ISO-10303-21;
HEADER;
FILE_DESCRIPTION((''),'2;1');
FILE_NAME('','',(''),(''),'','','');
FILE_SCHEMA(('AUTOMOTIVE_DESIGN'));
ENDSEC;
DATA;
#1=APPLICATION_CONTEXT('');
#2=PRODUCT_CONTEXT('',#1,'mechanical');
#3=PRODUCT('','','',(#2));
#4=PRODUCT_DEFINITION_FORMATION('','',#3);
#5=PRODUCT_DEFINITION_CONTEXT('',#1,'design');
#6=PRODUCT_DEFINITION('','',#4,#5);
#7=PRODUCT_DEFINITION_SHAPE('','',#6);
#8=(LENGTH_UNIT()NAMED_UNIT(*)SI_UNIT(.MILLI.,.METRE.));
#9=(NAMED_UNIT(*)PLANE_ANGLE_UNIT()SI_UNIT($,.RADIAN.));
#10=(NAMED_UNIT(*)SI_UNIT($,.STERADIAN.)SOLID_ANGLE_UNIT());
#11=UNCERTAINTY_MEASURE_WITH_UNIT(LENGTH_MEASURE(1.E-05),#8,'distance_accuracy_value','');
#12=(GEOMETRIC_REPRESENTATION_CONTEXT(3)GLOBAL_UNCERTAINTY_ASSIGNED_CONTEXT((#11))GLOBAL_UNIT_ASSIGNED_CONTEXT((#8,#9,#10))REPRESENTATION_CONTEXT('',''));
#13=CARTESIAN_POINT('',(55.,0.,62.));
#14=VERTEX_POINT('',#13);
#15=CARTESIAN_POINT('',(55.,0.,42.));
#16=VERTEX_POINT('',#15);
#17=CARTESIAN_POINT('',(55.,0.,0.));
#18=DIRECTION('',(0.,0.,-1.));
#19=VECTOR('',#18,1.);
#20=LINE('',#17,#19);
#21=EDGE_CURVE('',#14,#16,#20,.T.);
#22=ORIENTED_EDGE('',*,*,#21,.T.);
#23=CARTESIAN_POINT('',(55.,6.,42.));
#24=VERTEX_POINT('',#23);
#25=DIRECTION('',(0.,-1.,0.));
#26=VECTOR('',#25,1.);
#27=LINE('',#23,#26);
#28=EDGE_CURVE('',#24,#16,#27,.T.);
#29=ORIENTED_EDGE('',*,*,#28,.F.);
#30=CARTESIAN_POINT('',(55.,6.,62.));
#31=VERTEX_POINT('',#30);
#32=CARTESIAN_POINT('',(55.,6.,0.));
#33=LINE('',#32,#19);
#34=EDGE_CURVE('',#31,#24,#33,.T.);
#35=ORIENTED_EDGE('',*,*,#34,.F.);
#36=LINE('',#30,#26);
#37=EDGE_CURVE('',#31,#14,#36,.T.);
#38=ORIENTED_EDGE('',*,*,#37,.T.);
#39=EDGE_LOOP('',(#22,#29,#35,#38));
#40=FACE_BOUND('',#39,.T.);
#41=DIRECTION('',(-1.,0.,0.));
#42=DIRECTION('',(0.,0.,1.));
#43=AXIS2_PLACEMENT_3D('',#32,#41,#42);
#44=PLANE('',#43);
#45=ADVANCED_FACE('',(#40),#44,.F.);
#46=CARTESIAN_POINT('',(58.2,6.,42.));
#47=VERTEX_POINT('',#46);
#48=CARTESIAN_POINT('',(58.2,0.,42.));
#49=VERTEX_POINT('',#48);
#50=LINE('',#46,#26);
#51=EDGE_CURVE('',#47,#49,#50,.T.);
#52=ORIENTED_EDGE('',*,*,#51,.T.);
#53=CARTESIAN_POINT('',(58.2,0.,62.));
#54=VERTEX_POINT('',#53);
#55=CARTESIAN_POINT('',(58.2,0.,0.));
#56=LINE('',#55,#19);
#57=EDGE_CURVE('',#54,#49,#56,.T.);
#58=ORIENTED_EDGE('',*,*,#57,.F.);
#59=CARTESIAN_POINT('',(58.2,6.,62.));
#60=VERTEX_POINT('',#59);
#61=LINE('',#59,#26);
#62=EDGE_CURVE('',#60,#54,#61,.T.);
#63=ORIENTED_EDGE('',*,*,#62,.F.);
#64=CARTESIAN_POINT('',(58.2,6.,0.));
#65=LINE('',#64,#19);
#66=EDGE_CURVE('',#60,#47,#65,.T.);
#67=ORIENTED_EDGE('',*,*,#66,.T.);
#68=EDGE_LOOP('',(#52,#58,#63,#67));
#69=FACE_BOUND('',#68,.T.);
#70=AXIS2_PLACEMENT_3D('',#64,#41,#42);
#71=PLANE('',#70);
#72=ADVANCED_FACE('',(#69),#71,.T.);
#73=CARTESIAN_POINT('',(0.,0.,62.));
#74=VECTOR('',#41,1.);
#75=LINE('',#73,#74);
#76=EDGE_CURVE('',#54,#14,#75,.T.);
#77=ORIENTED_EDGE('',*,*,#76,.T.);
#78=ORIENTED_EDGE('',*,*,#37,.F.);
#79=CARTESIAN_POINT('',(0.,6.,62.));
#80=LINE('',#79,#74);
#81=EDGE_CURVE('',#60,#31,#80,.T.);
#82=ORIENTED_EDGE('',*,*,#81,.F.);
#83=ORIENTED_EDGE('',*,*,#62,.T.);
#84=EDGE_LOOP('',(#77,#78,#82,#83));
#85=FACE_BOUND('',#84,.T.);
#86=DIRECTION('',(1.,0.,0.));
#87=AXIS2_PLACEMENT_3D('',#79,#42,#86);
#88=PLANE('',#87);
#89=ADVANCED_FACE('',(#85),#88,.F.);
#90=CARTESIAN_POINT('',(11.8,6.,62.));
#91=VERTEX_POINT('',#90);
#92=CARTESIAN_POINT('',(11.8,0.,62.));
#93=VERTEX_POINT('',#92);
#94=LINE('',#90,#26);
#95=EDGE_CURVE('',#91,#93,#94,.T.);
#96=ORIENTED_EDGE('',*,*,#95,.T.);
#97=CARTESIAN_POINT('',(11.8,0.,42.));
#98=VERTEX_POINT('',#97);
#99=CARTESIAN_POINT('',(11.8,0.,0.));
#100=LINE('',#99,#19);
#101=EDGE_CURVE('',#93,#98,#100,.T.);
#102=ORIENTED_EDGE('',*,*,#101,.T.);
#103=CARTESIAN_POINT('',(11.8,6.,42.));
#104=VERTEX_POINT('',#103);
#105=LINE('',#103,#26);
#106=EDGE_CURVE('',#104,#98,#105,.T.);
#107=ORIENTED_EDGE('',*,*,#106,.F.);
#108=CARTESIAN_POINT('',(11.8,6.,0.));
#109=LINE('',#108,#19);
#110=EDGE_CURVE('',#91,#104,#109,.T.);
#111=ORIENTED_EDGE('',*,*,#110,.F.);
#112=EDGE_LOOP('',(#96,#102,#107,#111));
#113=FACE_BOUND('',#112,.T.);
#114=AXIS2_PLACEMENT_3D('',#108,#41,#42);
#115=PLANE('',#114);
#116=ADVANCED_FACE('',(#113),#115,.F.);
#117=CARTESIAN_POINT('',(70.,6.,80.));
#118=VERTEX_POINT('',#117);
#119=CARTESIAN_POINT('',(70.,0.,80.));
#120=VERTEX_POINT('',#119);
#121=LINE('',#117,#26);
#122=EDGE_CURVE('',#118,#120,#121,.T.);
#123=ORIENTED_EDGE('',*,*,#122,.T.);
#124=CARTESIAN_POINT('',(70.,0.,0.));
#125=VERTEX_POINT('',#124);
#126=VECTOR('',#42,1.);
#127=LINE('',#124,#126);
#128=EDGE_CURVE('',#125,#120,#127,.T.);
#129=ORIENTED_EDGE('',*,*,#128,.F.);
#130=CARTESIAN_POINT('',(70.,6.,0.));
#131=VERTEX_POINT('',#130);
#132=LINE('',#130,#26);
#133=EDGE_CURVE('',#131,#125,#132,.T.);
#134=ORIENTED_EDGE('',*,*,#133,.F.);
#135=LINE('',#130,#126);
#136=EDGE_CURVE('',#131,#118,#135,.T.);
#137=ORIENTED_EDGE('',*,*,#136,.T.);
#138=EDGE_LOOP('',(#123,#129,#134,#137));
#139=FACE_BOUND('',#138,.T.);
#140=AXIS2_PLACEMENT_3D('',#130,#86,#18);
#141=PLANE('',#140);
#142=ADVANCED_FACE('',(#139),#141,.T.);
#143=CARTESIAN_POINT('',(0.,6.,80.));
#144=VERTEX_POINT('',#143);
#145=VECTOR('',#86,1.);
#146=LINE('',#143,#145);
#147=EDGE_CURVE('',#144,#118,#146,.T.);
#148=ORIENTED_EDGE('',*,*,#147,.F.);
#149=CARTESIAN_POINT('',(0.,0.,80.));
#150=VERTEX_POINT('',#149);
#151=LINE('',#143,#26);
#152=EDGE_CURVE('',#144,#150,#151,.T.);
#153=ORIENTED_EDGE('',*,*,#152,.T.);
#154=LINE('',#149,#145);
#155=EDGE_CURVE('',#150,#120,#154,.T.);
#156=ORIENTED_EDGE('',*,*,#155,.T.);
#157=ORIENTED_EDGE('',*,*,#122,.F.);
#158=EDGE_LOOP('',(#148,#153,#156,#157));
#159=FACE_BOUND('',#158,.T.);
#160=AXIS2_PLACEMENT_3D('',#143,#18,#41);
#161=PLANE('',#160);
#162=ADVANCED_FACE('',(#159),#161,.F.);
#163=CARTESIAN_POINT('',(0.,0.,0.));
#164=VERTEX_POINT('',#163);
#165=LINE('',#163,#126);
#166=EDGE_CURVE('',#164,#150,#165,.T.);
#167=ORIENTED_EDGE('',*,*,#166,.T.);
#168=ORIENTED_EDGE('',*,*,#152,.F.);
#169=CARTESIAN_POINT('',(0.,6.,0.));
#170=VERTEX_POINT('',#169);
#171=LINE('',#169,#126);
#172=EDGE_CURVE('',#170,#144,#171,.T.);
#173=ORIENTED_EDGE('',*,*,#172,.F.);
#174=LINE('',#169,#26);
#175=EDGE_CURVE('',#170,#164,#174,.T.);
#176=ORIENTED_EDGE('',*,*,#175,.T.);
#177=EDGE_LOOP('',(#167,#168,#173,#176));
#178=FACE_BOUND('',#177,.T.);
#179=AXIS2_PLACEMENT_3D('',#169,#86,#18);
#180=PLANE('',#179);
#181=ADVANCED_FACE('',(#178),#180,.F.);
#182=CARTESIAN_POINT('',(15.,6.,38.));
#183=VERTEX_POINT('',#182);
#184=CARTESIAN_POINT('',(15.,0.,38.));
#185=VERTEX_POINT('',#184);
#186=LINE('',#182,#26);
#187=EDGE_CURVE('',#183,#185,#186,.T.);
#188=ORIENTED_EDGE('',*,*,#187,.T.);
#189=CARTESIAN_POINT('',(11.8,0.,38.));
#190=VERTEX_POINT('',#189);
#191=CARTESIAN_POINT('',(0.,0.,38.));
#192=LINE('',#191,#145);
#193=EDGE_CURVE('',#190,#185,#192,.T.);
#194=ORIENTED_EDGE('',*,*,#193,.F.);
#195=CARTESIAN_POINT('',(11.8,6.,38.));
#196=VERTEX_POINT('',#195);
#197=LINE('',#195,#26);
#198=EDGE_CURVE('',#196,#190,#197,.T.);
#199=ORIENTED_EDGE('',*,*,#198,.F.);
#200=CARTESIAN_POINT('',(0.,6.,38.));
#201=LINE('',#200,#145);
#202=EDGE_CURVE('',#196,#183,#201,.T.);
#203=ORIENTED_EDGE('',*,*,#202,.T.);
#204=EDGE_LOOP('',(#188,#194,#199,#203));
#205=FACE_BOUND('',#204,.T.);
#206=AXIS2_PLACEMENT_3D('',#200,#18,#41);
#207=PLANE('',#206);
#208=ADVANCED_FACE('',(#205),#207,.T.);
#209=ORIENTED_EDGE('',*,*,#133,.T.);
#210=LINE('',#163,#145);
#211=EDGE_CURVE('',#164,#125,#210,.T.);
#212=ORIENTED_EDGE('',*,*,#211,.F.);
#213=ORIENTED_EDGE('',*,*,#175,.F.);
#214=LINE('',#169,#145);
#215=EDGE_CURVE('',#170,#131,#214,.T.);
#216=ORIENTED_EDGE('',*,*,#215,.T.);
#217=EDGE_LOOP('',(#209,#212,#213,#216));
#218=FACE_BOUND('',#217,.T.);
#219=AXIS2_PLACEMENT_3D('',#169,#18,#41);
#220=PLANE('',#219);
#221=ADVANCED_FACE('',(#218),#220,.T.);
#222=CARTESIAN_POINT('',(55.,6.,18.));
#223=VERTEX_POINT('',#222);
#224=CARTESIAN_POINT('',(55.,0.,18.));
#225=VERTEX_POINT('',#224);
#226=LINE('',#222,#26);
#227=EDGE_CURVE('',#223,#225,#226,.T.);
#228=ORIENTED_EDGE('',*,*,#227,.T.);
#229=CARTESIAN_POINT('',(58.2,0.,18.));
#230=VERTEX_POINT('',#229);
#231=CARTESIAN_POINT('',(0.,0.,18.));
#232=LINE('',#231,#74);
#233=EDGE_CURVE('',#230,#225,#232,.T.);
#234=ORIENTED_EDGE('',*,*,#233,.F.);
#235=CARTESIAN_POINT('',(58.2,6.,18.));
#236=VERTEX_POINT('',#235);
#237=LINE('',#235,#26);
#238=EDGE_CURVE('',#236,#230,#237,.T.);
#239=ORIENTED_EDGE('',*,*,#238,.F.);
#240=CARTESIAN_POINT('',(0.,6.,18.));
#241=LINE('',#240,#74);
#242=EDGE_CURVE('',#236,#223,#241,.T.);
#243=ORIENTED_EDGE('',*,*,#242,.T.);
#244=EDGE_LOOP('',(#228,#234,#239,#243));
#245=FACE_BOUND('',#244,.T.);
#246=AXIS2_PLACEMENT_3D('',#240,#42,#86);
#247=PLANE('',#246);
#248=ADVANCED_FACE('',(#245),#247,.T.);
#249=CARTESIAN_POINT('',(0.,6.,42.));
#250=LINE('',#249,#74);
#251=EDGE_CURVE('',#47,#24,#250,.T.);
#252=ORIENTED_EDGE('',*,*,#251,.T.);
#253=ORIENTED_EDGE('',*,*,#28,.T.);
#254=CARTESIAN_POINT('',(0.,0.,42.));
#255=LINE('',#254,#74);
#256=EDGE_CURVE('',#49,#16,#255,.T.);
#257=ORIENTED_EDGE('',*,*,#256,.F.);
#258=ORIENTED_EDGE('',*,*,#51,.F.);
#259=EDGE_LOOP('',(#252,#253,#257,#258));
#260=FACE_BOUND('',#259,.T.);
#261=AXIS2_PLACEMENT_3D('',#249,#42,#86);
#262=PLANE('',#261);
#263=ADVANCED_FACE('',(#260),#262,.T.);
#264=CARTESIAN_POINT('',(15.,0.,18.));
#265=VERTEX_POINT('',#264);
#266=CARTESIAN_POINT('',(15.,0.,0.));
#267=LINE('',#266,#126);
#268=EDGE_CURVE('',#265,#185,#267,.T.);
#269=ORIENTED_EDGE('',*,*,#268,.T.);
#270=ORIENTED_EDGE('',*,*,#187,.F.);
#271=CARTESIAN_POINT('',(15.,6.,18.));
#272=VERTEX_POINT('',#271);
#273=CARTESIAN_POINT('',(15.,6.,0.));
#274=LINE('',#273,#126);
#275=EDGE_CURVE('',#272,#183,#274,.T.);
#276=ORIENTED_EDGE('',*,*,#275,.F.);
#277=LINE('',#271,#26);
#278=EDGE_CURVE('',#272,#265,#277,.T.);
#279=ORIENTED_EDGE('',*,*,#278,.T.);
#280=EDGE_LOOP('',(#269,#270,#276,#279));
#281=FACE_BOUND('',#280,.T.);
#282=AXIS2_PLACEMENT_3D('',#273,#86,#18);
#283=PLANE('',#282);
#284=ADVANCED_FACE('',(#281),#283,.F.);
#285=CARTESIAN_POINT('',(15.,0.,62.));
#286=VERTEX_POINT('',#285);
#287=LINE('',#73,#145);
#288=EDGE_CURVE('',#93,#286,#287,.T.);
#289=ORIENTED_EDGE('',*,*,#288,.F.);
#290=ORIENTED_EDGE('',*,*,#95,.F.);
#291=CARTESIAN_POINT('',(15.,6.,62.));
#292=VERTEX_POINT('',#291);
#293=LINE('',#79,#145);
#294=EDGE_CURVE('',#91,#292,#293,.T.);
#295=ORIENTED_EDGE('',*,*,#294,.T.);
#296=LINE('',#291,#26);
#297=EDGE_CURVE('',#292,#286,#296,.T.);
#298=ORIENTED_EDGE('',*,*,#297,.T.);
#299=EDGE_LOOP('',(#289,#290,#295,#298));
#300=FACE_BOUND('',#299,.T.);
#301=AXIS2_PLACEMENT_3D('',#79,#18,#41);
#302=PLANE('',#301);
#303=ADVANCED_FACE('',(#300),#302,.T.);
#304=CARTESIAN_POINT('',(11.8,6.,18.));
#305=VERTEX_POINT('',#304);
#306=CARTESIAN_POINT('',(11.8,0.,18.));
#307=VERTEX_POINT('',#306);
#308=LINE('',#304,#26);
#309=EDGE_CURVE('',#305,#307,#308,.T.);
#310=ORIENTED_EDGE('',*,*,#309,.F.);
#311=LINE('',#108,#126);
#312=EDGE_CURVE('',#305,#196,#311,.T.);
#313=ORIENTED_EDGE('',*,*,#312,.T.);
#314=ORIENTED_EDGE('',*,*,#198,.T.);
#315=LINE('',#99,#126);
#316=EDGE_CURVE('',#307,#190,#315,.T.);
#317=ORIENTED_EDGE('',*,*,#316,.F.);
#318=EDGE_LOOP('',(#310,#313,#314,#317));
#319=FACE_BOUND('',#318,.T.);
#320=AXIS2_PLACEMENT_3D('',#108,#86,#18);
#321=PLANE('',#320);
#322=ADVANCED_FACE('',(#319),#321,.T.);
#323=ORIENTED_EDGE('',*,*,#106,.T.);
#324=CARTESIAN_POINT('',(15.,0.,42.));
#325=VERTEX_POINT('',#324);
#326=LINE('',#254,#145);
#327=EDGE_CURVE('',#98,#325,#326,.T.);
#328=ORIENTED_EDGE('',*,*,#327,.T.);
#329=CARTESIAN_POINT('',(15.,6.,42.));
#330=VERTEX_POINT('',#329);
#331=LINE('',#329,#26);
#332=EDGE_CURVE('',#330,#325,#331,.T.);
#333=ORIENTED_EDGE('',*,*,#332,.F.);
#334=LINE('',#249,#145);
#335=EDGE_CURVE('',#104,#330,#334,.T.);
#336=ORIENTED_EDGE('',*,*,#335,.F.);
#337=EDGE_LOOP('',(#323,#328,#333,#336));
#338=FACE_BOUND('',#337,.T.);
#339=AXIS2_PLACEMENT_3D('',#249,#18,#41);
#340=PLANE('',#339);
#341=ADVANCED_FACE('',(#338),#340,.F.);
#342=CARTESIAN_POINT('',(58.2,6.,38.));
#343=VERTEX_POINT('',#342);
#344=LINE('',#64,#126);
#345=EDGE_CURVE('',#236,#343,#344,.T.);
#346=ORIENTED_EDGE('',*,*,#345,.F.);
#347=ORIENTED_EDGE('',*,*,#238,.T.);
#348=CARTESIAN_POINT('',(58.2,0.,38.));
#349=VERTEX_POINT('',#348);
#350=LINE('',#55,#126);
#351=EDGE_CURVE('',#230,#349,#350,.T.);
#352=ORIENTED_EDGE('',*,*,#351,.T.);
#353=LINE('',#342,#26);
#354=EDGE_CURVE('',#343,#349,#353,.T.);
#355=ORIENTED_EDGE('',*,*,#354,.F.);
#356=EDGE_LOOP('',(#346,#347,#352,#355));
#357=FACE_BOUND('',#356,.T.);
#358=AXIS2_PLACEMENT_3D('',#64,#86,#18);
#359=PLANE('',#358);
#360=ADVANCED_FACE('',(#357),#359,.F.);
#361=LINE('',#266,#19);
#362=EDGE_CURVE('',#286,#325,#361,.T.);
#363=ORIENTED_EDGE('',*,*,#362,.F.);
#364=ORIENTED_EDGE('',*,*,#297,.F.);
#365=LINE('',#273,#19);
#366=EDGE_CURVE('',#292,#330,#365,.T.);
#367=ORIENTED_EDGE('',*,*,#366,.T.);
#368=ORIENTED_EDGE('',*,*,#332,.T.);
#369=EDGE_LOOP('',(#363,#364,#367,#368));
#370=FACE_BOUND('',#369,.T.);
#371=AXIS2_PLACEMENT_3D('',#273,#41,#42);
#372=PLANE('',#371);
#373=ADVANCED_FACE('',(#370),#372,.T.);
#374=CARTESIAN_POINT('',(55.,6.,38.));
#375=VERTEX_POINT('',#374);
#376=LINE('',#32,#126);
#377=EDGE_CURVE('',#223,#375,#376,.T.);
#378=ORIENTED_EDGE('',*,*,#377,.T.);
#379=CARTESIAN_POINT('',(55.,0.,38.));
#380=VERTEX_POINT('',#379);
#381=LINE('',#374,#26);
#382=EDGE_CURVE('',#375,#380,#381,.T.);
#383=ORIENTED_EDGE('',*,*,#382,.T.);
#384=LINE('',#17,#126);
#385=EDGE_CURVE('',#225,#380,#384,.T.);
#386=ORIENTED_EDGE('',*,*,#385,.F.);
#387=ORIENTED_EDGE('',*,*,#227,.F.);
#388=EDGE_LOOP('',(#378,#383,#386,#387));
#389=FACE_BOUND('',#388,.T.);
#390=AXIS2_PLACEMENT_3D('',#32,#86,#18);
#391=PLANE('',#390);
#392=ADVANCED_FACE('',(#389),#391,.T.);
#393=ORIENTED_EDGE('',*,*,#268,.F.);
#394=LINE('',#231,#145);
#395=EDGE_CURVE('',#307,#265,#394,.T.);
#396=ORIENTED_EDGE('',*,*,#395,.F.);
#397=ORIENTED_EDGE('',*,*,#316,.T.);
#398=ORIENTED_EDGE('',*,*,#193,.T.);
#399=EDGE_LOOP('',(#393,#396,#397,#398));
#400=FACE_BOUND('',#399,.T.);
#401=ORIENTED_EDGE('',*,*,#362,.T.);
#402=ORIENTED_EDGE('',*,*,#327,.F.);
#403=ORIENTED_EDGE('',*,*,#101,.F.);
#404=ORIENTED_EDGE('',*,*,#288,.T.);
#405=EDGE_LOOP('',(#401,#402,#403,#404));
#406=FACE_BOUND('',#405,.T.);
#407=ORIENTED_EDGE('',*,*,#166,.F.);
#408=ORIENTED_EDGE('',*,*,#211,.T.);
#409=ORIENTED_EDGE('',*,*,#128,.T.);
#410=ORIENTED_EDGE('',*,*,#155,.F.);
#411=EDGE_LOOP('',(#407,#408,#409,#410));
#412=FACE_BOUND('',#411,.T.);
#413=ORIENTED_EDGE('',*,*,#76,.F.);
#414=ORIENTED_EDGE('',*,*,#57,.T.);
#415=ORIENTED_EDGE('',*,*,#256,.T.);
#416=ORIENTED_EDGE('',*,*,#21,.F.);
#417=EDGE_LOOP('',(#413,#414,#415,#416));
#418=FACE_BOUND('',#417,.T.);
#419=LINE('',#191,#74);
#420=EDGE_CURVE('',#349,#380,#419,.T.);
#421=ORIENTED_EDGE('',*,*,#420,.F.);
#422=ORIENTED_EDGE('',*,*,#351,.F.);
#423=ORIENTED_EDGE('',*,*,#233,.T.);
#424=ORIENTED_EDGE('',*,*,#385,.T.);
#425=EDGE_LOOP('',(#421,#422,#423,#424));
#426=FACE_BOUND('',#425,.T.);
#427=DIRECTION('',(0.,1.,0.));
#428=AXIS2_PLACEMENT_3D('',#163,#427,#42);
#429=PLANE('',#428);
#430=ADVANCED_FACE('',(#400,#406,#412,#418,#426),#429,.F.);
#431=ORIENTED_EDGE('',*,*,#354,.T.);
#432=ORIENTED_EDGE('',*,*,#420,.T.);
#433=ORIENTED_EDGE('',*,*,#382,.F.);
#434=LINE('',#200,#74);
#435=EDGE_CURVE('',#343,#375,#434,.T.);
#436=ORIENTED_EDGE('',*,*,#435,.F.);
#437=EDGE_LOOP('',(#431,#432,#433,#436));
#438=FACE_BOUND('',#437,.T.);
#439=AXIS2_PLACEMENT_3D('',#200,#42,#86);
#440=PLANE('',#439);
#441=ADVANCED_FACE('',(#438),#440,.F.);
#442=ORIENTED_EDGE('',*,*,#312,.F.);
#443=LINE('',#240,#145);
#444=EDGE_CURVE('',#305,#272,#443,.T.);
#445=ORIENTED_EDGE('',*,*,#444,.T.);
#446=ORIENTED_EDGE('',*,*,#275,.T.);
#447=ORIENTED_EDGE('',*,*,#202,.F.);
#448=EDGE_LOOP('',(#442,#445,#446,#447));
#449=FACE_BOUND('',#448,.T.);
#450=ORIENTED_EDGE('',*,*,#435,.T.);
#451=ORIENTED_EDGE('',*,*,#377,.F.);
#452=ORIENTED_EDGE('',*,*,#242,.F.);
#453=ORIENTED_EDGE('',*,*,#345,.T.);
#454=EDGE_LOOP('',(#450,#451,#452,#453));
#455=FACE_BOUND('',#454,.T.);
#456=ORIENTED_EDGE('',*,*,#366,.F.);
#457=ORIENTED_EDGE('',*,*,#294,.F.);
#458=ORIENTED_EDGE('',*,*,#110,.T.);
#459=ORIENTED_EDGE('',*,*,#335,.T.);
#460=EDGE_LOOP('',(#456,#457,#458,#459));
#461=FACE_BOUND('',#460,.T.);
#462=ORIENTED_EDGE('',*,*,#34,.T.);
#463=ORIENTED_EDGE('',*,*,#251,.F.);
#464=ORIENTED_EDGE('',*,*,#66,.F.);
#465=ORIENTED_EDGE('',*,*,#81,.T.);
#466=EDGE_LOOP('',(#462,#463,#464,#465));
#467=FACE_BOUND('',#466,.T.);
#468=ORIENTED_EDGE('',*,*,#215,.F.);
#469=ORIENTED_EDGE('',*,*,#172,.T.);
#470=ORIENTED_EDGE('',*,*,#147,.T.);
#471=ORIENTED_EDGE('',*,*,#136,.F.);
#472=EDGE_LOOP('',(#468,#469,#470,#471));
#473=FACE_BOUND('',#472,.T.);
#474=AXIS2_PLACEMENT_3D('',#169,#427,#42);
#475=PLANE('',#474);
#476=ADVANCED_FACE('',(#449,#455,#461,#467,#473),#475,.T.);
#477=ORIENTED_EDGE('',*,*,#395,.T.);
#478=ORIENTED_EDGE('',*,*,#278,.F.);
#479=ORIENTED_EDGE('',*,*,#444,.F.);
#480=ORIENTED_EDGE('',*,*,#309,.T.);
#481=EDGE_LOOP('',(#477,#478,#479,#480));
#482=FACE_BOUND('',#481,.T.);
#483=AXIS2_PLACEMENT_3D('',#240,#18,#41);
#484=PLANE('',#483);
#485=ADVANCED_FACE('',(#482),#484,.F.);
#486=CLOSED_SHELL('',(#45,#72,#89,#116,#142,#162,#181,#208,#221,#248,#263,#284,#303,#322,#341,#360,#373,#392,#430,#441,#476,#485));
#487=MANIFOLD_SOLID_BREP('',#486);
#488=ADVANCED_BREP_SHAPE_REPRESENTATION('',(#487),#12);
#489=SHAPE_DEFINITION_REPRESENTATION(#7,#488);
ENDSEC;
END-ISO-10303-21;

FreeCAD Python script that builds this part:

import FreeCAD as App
import Part
import Sketcher
Q = App.Units.Quantity


def add_polygon(sketch, points):
    """Adds a closed chain of lines whose ends are joined by coincident constraints."""
    first, n = sketch.GeometryCount, len(points)
    for a, b in zip(points, points[1:] + points[:1]):
        sketch.addGeometry(Part.LineSegment(App.Vector(*a, 0), App.Vector(*b, 0)), False)
    for i in range(n):
        sketch.addConstraint(Sketcher.Constraint("Coincident", first + i, 2, first + (i + 1) % n, 1))

doc = App.newDocument("Part")
body = doc.addObject("PartDesign::Body", "Body")

# Sketch on XZ plane
sketch1 = doc.addObject("Sketcher::SketchObject", "Sketch")
body.addObject(sketch1)
sketch1.AttachmentSupport = (doc.XZ_Plane, [""])
sketch1.MapMode = "FlatFace"
add_polygon(sketch1, [(0, 0), (0, 80), (70, 80), (70, 0)])  # lines 0-3
add_polygon(sketch1, [(15, 62), (11.8, 62), (11.8, 42), (15, 42)])  # lines 4-7
add_polygon(sketch1, [(58.2, 62), (55, 62), (55, 42), (58.2, 42)])  # lines 8-11
add_polygon(sketch1, [(15, 38), (11.8, 38), (11.8, 18), (15, 18)])  # lines 12-15
add_polygon(sketch1, [(58.2, 38), (55, 38), (55, 18), (58.2, 18)])  # lines 16-19
sketch1.addConstraint([
    Sketcher.Constraint("Vertical", 0),
    Sketcher.Constraint("Horizontal", 1),
    Sketcher.Constraint("Vertical", 2),
    Sketcher.Constraint("Horizontal", 3),
    Sketcher.Constraint("Horizontal", 4),
    Sketcher.Constraint("Vertical", 5),
    Sketcher.Constraint("Horizontal", 6),
    Sketcher.Constraint("Vertical", 7),
    Sketcher.Constraint("Horizontal", 8),
    Sketcher.Constraint("Vertical", 9),
    Sketcher.Constraint("Horizontal", 10),
    Sketcher.Constraint("Vertical", 11),
    Sketcher.Constraint("Horizontal", 12),
    Sketcher.Constraint("Vertical", 13),
    Sketcher.Constraint("Horizontal", 14),
    Sketcher.Constraint("Vertical", 15),
    Sketcher.Constraint("Horizontal", 16),
    Sketcher.Constraint("Vertical", 17),
    Sketcher.Constraint("Horizontal", 18),
    Sketcher.Constraint("Vertical", 19),
    Sketcher.Constraint("Coincident", 3, 2, -1, 1),
    Sketcher.Constraint("Horizontal", 7, 2, 8, 2),
    Sketcher.Constraint("Horizontal", 6, 2, 9, 2),
    Sketcher.Constraint("Horizontal", 15, 2, 16, 2),
    Sketcher.Constraint("Horizontal", 14, 2, 17, 2),
    Sketcher.Constraint("Vertical", 5, 2, 12, 2),
    Sketcher.Constraint("Vertical", 7, 2, 14, 2),
    Sketcher.Constraint("Vertical", 9, 2, 16, 2),
    Sketcher.Constraint("Vertical", 11, 2, 18, 2),
    Sketcher.Constraint("Equal", 6, 8),
    Sketcher.Constraint("Equal", 11, 13),
    Sketcher.Constraint("DistanceX", 1, 1, 1, 2, Q("70 mm")),
    Sketcher.Constraint("DistanceY", 0, 1, 0, 2, Q("80 mm")),
    Sketcher.Constraint("DistanceY", 5, 2, 5, 1, Q("20 mm")),
    Sketcher.Constraint("DistanceX", 4, 2, 4, 1, Q("3.2 mm")),
    Sketcher.Constraint("DistanceY", -1, 1, 4, 2, Q("62 mm")),
    Sketcher.Constraint("DistanceX", -1, 1, 6, 2, Q("15 mm")),
    Sketcher.Constraint("DistanceX", -1, 1, 8, 2, Q("55 mm")),
    Sketcher.Constraint("DistanceY", -1, 1, 12, 2, Q("38 mm")),
])
pad1 = doc.addObject("PartDesign::Pad", "Pad")
body.addObject(pad1)
pad1.Profile = sketch1
pad1.Length = 6
pad1.Reversed = True

doc.recompute()
